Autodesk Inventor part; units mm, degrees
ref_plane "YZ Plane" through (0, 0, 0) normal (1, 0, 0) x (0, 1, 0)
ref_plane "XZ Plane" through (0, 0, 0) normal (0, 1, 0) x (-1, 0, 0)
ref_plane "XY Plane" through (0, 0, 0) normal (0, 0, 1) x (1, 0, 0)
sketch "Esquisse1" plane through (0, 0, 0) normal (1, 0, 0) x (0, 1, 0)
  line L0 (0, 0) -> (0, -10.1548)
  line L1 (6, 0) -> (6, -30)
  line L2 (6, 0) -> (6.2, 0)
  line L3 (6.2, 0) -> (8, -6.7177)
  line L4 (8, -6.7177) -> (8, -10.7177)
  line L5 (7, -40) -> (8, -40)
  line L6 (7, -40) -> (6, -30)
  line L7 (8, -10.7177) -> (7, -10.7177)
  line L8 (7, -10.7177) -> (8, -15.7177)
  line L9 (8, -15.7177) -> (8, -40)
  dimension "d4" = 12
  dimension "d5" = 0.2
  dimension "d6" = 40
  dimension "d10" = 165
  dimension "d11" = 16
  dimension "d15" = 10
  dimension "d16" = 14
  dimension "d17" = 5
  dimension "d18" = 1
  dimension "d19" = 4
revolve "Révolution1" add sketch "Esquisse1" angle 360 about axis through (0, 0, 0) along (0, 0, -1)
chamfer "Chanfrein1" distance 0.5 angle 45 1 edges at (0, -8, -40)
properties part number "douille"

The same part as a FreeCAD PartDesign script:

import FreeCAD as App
import Part
import Sketcher
from FreeCAD import Vector
Q = App.Units.Quantity


def edges_at(feature, points):
    """Names of the edges that pass closest to the given points."""
    edges = feature.Shape.Edges
    near = lambda p: min(range(len(edges)), key=lambda i: edges[i].distToShape(Part.Vertex(*p))[0])
    return sorted({f"Edge{near(p) + 1}" for p in points})

doc = App.newDocument("Part")
body = doc.addObject("PartDesign::Body", "Body")

# Sketch on YZ plane
sketch1 = body.newObject("Sketcher::SketchObject", "Sketch")
sketch1.AttachmentSupport = (doc.getObject("YZ_Plane"), [""])
sketch1.MapMode = "FlatFace"
sketch1.addGeometry([
    Part.LineSegment(Vector(6.2, 0, 0), Vector(6, 0, 0)),  # 0
    Part.LineSegment(Vector(6, 0, 0), Vector(6, -30, 0)),  # 1
    Part.LineSegment(Vector(6, -30, 0), Vector(7, -40, 0)),  # 2
    Part.LineSegment(Vector(7, -40, 0), Vector(8, -40, 0)),  # 3
    Part.LineSegment(Vector(8, -40, 0), Vector(8, -15.7177, 0)),  # 4
    Part.LineSegment(Vector(8, -15.7177, 0), Vector(7, -10.7177, 0)),  # 5
    Part.LineSegment(Vector(7, -10.7177, 0), Vector(8, -10.7177, 0)),  # 6
    Part.LineSegment(Vector(8, -10.7177, 0), Vector(8, -6.7177, 0)),  # 7
    Part.LineSegment(Vector(8, -6.7177, 0), Vector(6.2, 0, 0)),  # 8
], False)
sketch1.addConstraint([
    Sketcher.Constraint("Coincident", 0, 2, 1, 1),
    Sketcher.Constraint("Coincident", 1, 2, 2, 1),
    Sketcher.Constraint("Coincident", 2, 2, 3, 1),
    Sketcher.Constraint("Coincident", 3, 2, 4, 1),
    Sketcher.Constraint("Coincident", 4, 2, 5, 1),
    Sketcher.Constraint("Coincident", 5, 2, 6, 1),
    Sketcher.Constraint("Coincident", 6, 2, 7, 1),
    Sketcher.Constraint("Coincident", 7, 2, 8, 1),
    Sketcher.Constraint("Coincident", 8, 2, 0, 1),
    Sketcher.Constraint("Horizontal", 0),
    Sketcher.Constraint("Vertical", 1),
    Sketcher.Constraint("Horizontal", 3),
    Sketcher.Constraint("Vertical", 4),
    Sketcher.Constraint("Horizontal", 6),
    Sketcher.Constraint("Vertical", 7),
    Sketcher.Constraint("PointOnObject", 0, 2, -1),
    Sketcher.Constraint("Vertical", 2, 2, 5, 2),
    Sketcher.Constraint("Vertical", 4, 2, 6, 2),
    Sketcher.Constraint("DistanceX", 3, 1, 3, 2, 1.0),
    Sketcher.Constraint("DistanceY", 7, 1, 7, 2, 4.0),
    Sketcher.Constraint("DistanceX", 0, 2, 0, 1, 0.2),
    Sketcher.Constraint("DistanceY", 2, 2, -1, 1, 40.0),
    Sketcher.Constraint("DistanceX", 1, 2, 2, 2, 1.0),
    Sketcher.Constraint("DistanceY", 2, 2, 1, 2, 10.0),
    Sketcher.Constraint("DistanceY", 4, 2, 5, 2, 5.0),
    Sketcher.Constraint("Angle", 8, Q("105 deg")),
    Sketcher.Constraint("DistanceX", -1, 1, 0, 2, 6.0),
])
revolution = body.newObject("PartDesign::Revolution", "Revolution")
revolution.Profile = sketch1
revolution.ReferenceAxis = (sketch1, ["V_Axis"])
revolution.Angle = 360
doc.recompute()

chamfer = body.newObject("PartDesign::Chamfer", "Chamfer")
chamfer.Base = (revolution, edges_at(revolution, [(0, -8, -40)]))
chamfer.Size = 0.5

doc.recompute()
